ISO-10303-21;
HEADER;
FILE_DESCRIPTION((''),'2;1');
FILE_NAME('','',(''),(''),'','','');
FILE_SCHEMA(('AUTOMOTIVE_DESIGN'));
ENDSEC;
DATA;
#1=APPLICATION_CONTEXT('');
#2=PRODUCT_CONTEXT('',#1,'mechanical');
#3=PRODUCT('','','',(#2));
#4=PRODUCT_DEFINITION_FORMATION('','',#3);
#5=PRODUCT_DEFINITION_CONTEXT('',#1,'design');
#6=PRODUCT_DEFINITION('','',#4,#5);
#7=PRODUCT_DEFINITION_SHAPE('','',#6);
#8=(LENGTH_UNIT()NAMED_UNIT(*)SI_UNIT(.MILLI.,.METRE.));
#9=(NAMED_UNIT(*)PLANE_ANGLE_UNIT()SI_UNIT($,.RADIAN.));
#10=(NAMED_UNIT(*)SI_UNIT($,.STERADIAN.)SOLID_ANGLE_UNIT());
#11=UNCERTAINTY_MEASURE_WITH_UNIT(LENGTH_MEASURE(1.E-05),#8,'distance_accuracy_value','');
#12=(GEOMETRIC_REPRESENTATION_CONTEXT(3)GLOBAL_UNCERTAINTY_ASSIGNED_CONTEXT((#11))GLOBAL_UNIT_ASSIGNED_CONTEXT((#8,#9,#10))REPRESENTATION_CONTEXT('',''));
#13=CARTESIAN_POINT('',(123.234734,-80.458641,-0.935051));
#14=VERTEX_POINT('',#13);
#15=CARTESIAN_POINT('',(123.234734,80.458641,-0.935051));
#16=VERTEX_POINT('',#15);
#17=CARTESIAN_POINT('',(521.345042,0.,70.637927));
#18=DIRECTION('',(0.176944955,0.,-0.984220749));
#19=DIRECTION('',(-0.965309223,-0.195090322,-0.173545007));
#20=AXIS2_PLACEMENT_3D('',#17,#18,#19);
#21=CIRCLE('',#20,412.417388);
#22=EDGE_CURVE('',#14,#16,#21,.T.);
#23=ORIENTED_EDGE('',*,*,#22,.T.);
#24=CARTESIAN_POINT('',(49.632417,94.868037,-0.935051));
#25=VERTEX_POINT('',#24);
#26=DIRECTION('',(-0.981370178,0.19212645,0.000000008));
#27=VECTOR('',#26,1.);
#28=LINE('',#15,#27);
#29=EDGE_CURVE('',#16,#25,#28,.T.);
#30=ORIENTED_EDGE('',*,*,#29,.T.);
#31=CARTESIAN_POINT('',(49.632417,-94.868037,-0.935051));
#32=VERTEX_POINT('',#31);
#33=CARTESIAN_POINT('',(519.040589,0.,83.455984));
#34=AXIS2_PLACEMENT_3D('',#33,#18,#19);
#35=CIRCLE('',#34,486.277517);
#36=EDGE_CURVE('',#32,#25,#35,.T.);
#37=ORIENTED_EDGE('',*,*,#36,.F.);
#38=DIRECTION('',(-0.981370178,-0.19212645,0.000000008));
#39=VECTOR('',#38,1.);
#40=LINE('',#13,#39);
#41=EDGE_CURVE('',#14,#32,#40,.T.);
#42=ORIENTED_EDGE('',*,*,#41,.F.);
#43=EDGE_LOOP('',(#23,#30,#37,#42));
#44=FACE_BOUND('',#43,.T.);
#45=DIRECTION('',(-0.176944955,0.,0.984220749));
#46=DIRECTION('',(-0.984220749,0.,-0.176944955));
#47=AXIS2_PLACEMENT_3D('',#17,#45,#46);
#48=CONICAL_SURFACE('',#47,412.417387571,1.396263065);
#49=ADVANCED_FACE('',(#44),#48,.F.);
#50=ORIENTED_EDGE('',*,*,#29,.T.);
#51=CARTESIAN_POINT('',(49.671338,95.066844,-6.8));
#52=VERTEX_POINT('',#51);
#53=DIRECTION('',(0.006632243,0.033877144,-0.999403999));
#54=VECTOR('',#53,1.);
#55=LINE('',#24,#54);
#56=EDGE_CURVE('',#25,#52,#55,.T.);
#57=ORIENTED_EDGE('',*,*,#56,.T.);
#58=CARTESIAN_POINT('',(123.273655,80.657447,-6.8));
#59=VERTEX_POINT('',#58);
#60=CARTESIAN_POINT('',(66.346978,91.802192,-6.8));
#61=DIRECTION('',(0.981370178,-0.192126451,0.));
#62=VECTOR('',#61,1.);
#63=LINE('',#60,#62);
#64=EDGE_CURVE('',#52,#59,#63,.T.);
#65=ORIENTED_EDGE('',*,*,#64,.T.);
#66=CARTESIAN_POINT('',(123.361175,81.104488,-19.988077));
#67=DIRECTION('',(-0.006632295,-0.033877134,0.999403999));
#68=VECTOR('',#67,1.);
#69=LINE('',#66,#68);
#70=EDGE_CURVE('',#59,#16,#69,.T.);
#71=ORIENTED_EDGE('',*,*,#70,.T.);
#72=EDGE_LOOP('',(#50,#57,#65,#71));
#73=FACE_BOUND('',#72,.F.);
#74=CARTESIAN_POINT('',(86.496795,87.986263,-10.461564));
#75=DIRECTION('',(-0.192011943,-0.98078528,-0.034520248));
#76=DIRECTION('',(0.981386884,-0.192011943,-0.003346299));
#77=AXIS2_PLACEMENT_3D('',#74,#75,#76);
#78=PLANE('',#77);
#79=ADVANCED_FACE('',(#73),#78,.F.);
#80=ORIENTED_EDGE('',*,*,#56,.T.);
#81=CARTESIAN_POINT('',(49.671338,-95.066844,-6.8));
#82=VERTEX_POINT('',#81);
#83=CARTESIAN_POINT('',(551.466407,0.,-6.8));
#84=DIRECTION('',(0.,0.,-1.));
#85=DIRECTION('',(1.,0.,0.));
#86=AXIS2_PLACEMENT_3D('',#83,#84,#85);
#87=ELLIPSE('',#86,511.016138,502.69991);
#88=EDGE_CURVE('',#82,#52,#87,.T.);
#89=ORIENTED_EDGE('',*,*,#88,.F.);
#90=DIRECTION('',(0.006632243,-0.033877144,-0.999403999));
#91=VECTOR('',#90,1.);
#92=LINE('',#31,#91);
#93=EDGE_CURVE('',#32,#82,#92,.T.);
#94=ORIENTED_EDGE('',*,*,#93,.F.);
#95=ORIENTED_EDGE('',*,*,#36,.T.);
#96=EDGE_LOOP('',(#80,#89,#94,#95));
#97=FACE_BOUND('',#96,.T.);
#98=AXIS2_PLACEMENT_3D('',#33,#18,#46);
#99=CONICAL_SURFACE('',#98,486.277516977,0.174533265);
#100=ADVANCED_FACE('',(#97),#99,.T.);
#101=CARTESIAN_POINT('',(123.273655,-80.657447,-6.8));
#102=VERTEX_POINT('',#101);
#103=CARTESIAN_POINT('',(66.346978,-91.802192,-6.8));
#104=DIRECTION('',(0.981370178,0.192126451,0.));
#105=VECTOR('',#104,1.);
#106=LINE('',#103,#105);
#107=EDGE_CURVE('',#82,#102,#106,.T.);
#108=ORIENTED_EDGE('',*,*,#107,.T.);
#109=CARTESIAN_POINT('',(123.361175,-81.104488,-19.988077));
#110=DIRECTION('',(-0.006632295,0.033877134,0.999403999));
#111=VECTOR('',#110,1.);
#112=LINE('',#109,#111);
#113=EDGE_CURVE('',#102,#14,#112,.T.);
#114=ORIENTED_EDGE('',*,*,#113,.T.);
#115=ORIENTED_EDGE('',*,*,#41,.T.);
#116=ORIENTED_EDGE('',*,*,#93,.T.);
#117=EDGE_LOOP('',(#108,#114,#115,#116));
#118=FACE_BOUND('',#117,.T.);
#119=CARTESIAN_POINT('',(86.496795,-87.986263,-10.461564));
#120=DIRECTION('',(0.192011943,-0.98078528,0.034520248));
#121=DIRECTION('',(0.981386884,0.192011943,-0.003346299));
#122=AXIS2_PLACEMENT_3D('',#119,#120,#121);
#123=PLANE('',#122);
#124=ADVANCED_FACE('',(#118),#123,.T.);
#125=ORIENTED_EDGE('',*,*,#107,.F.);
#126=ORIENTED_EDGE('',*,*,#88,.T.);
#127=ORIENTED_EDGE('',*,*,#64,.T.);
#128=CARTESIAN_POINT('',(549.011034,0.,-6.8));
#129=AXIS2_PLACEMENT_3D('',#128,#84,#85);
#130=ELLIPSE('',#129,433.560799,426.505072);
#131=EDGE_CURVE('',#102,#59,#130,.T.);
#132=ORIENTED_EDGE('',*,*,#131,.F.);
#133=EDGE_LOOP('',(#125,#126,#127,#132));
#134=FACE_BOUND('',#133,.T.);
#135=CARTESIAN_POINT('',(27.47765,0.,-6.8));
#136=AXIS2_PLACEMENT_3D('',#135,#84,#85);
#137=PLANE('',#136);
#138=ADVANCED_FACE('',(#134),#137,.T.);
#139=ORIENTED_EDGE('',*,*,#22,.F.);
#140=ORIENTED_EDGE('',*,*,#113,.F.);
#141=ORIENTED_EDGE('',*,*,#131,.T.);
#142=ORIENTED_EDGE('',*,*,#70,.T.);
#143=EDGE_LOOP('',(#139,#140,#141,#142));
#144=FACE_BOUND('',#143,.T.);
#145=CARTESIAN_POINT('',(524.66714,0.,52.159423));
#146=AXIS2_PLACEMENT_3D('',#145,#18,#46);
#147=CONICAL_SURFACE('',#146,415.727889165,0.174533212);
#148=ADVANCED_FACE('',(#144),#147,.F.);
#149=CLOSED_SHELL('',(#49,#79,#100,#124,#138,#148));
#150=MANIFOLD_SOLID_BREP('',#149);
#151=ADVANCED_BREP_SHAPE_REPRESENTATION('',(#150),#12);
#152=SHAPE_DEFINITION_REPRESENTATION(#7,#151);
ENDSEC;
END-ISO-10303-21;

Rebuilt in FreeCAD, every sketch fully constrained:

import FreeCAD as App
import Part
import Sketcher

V = App.Vector

doc = App.newDocument("Part")
params = doc.addObject("Spreadsheet::Sheet", "Params")
for row, (alias, value) in enumerate([
    ("revolution_angle", "11.25 deg"),
    ("revolution2_angle", "11.25 deg"),
    ("pocket1_length", "240 mm"),
], start=1):
    params.set(f"A{row}", alias)
    params.set(f"B{row}", "=" + value)
    params.setAlias(f"B{row}", alias)

body = doc.addObject("PartDesign::Body", "Body")

sketch1 = body.newObject("Sketcher::SketchObject", "Sketch")
sketch1.AttachmentSupport = (doc.getObject("XZ_Plane"), [""])
sketch1.MapMode = "FlatFace"
sketch1.addGeometry(Part.LineSegment(V(40.436167, -2.588369, 0), V(40.5, -21.652651, 0)), False)
sketch1.addGeometry(Part.LineSegment(V(40.5, -21.652651, 0), V(115.499126, -21.40153, 0)), False)
sketch1.addGeometry(Part.LineSegment(V(115.499126, -21.40153, 0), V(115.435292, -2.337249, 0)), False)
sketch1.addGeometry(Part.LineSegment(V(115.435292, -2.337249, 0), V(40.436167, -2.588369, 0)), False)
sketch1.addGeometry(Part.LineSegment(V(524.66714, 52.159423, 0), V(519.040589, 83.455984, 0)), True)
sketch1.addConstraint(Sketcher.Constraint("Coincident", 0, 2, 1, 1))
sketch1.addConstraint(Sketcher.Constraint("Coincident", 1, 2, 2, 1))
sketch1.addConstraint(Sketcher.Constraint("Coincident", 2, 2, 3, 1))
sketch1.addConstraint(Sketcher.Constraint("Coincident", 3, 2, 0, 1))
sketch1.addConstraint(Sketcher.Constraint("Perpendicular", 0, 1))
sketch1.addConstraint(Sketcher.Constraint("Perpendicular", 1, 2))
sketch1.addConstraint(Sketcher.Constraint("Perpendicular", 2, 3))
sketch1.addConstraint(Sketcher.Constraint("DistanceX", -1, 1, 0, 2, 40.5))
sketch1.addConstraint(Sketcher.Constraint("DistanceY", 0, 2, 2, 2, 19.315402))
sketch1.addConstraint(Sketcher.Constraint("Distance", 0, 19.064389))
sketch1.addConstraint(Sketcher.Constraint("DistanceY", 0, 2, -1, 1, 21.652651))
sketch1.addConstraint(Sketcher.Constraint("DistanceX", -1, 1, 4, 1, 524.66714))
sketch1.addConstraint(Sketcher.Constraint("DistanceX", -1, 1, 4, 2, 519.040589))
sketch1.addConstraint(Sketcher.Constraint("DistanceX", 3, 2, 1, 2, 75.062959))
sketch1.addConstraint(Sketcher.Constraint("DistanceY", 2, 2, 4, 1, 54.496672))
sketch1.addConstraint(Sketcher.Constraint("DistanceY", 4, 1, 4, 2, 31.296562))
revolution = body.newObject("PartDesign::Revolution", "Revolution")
revolution.Profile = sketch1
revolution.ReferenceAxis = (sketch1, ["Axis0"])
revolution.setExpression("Angle", "Params.revolution_angle")

sketch2 = body.newObject("Sketcher::SketchObject", "Sketch001")
sketch2.AttachmentSupport = (doc.getObject("XZ_Plane"), [""])
sketch2.MapMode = "FlatFace"
sketch2.addGeometry(Part.LineSegment(V(40.436167, -2.588369, 0), V(40.5, -21.652651, 0)), False)
sketch2.addGeometry(Part.LineSegment(V(40.5, -21.652651, 0), V(115.499126, -21.40153, 0)), False)
sketch2.addGeometry(Part.LineSegment(V(115.499126, -21.40153, 0), V(115.435292, -2.337249, 0)), False)
sketch2.addGeometry(Part.LineSegment(V(115.435292, -2.337249, 0), V(40.436167, -2.588369, 0)), False)
sketch2.addGeometry(Part.LineSegment(V(519.040589, 83.455984, 0), V(524.66714, 52.159423, 0)), True)
sketch2.addConstraint(Sketcher.Constraint("Coincident", 0, 2, 1, 1))
sketch2.addConstraint(Sketcher.Constraint("Coincident", 1, 2, 2, 1))
sketch2.addConstraint(Sketcher.Constraint("Coincident", 2, 2, 3, 1))
sketch2.addConstraint(Sketcher.Constraint("Coincident", 3, 2, 0, 1))
sketch2.addConstraint(Sketcher.Constraint("Perpendicular", 0, 1))
sketch2.addConstraint(Sketcher.Constraint("Perpendicular", 1, 2))
sketch2.addConstraint(Sketcher.Constraint("Perpendicular", 2, 3))
sketch2.addConstraint(Sketcher.Constraint("DistanceX", -1, 1, 0, 2, 40.5))
sketch2.addConstraint(Sketcher.Constraint("DistanceY", 0, 2, 2, 2, 19.315402))
sketch2.addConstraint(Sketcher.Constraint("Distance", 0, 19.064389))
sketch2.addConstraint(Sketcher.Constraint("DistanceY", 0, 2, -1, 1, 21.652651))
sketch2.addConstraint(Sketcher.Constraint("DistanceX", -1, 1, 4, 1, 519.040589))
sketch2.addConstraint(Sketcher.Constraint("DistanceX", -1, 1, 4, 2, 524.66714))
sketch2.addConstraint(Sketcher.Constraint("DistanceX", 3, 2, 1, 2, 75.062959))
sketch2.addConstraint(Sketcher.Constraint("DistanceY", 4, 2, 4, 1, 31.296562))
sketch2.addConstraint(Sketcher.Constraint("DistanceY", 2, 2, 4, 2, 54.496672))
revolution2 = body.newObject("PartDesign::Revolution", "Revolution001")
revolution2.Profile = sketch2
revolution2.ReferenceAxis = (sketch2, ["Axis0"])
revolution2.setExpression("Angle", "Params.revolution2_angle")

sketch3 = body.newObject("Sketcher::SketchObject", "Sketch002")
sketch3.AttachmentSupport = (doc.getObject("XZ_Plane"), [""])
sketch3.MapMode = "FlatFace"
sketch3.addGeometry(Part.LineSegment(V(27.47765, -6.8, 0), V(27.47765, -31.153005, 0)), False)
sketch3.addGeometry(Part.LineSegment(V(27.47765, -31.153005, 0), V(140.538558, -31.153005, 0)), False)
sketch3.addGeometry(Part.LineSegment(V(140.538558, -31.153005, 0), V(140.538558, -6.8, 0)), False)
sketch3.addGeometry(Part.LineSegment(V(140.538558, -6.8, 0), V(27.47765, -6.8, 0)), False)
sketch3.addConstraint(Sketcher.Constraint("Coincident", 0, 2, 1, 1))
sketch3.addConstraint(Sketcher.Constraint("Coincident", 1, 2, 2, 1))
sketch3.addConstraint(Sketcher.Constraint("Coincident", 2, 2, 3, 1))
sketch3.addConstraint(Sketcher.Constraint("Coincident", 3, 2, 0, 1))
sketch3.addConstraint(Sketcher.Constraint("Vertical", 0))
sketch3.addConstraint(Sketcher.Constraint("Horizontal", 1))
sketch3.addConstraint(Sketcher.Constraint("Vertical", 2))
sketch3.addConstraint(Sketcher.Constraint("Horizontal", 3))
sketch3.addConstraint(Sketcher.Constraint("DistanceY", 2, 2, -1, 1, 6.8))
sketch3.addConstraint(Sketcher.Constraint("DistanceX", 1, 1, 1, 2, 113.060908))
sketch3.addConstraint(Sketcher.Constraint("DistanceY", 0, 2, 0, 1, 24.353005))
sketch3.addConstraint(Sketcher.Constraint("DistanceX", -1, 1, 0, 2, 27.47765))
pocket1 = body.newObject("PartDesign::Pocket", "Pocket")
pocket1.Profile = sketch3
pocket1.setExpression("Length", "Params.pocket1_length")
pocket1.Midplane = True

doc.recompute()
